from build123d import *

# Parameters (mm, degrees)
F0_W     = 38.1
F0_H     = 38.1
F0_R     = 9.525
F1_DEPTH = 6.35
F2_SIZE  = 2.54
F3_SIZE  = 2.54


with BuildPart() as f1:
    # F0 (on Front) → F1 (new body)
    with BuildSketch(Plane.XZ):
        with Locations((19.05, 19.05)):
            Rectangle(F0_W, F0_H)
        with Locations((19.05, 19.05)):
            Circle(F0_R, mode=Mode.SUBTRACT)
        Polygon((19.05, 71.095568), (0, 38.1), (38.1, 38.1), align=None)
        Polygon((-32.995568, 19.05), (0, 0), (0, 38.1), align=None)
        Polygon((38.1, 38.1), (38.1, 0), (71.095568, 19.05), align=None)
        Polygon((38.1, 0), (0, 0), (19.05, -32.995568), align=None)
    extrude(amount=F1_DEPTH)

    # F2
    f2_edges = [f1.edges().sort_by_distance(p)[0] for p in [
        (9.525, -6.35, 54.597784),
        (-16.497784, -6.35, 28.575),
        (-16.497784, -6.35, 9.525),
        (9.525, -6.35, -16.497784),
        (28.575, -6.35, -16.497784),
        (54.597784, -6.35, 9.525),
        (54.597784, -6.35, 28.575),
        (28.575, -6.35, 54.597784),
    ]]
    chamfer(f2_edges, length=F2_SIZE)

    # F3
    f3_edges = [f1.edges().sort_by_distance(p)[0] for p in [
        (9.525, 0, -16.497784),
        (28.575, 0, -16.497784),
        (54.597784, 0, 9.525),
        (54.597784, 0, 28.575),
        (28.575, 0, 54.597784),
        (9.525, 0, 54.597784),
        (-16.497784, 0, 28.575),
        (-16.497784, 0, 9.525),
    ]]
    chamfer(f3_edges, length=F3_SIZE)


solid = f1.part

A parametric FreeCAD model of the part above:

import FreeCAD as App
import Part
import Sketcher
Q = App.Units.Quantity


def edges_at(feature, points):
    """Names of the edges that pass closest to the given points."""
    edges = feature.Shape.Edges
    near = lambda p: min(range(len(edges)), key=lambda i: edges[i].distToShape(Part.Vertex(*p))[0])
    return sorted({f"Edge{near(p) + 1}" for p in points})


def add_polygon(sketch, points):
    """Adds a closed chain of lines whose ends are joined by coincident constraints."""
    first, n = sketch.GeometryCount, len(points)
    for a, b in zip(points, points[1:] + points[:1]):
        sketch.addGeometry(Part.LineSegment(App.Vector(*a, 0), App.Vector(*b, 0)), False)
    for i in range(n):
        sketch.addConstraint(Sketcher.Constraint("Coincident", first + i, 2, first + (i + 1) % n, 1))

doc = App.newDocument("Part")
body = doc.addObject("PartDesign::Body", "Body")

sketch1 = body.newObject("Sketcher::SketchObject", "Sketch")
sketch1.AttachmentSupport = (doc.getObject("XZ_Plane"), [""])
sketch1.MapMode = "FlatFace"
add_polygon(sketch1, [(38, 0), (71, 19), (38, 38), (19, 71), (0, 38), (-33, 19), (0, 0), (19, -33)])
sketch1.addGeometry(Part.Circle(App.Vector(19, 19, 0), App.Vector(0, 0, 1), 10), False)
sketch1.addConstraint([
    Sketcher.Constraint("Coincident", 5, 2, -1, 1),
    Sketcher.Constraint("PointOnObject", 3, 2, -2),
    Sketcher.Constraint("PointOnObject", 7, 2, -1),
    Sketcher.Constraint("Perpendicular", 0, 2),
    Sketcher.Constraint("Perpendicular", 1, 3),
    Sketcher.Constraint("Perpendicular", 2, 4),
    Sketcher.Constraint("Perpendicular", 3, 5),
    Sketcher.Constraint("Perpendicular", 4, 6),
    Sketcher.Constraint("Perpendicular", 5, 7),
    Sketcher.Constraint("Horizontal", 8, 3, 0, 2),
    Sketcher.Constraint("Horizontal", 1, 2, 3, 2),
    Sketcher.Constraint("Horizontal", 0, 2, 4, 2),
    Sketcher.Constraint("Vertical", 8, 3, 2, 2),
    Sketcher.Constraint("Vertical", 2, 2, 6, 2),
    Sketcher.Constraint("Equal", 1, 2),
    Sketcher.Constraint("Diameter", 8, Q("0.75 in")),
    Sketcher.Constraint("Angle", 0, Q("30 deg")),
    Sketcher.Constraint("Distance", 0, Q("1.5 in")),
])
pad1 = body.newObject("PartDesign::Pad", "Pad")
pad1.Profile = sketch1
pad1.Length = Q("0.25 in")
doc.recompute()

chamfer = body.newObject("PartDesign::Chamfer", "Chamfer")
chamfer.Base = (pad1, edges_at(pad1, [
    (9.525, -6.35, 54.598),
    (-16.498, -6.35, 28.575),
    (-16.498, -6.35, 9.525),
    (9.525, -6.35, -16.498),
    (28.575, -6.35, -16.498),
    (54.598, -6.35, 9.525),
    (54.598, -6.35, 28.575),
    (28.575, -6.35, 54.598),
]))
chamfer.Size = Q("0.1 in")
doc.recompute()

chamfer2 = body.newObject("PartDesign::Chamfer", "Chamfer001")
chamfer2.Base = (chamfer, edges_at(chamfer, [
    (9.525, 0, -16.498),
    (28.575, 0, -16.498),
    (54.598, 0, 9.525),
    (54.598, 0, 28.575),
    (28.575, 0, 54.598),
    (9.525, 0, 54.598),
    (-16.498, 0, 28.575),
    (-16.498, 0, 9.525),
]))
chamfer2.Size = Q("0.1 in")

doc.recompute()
